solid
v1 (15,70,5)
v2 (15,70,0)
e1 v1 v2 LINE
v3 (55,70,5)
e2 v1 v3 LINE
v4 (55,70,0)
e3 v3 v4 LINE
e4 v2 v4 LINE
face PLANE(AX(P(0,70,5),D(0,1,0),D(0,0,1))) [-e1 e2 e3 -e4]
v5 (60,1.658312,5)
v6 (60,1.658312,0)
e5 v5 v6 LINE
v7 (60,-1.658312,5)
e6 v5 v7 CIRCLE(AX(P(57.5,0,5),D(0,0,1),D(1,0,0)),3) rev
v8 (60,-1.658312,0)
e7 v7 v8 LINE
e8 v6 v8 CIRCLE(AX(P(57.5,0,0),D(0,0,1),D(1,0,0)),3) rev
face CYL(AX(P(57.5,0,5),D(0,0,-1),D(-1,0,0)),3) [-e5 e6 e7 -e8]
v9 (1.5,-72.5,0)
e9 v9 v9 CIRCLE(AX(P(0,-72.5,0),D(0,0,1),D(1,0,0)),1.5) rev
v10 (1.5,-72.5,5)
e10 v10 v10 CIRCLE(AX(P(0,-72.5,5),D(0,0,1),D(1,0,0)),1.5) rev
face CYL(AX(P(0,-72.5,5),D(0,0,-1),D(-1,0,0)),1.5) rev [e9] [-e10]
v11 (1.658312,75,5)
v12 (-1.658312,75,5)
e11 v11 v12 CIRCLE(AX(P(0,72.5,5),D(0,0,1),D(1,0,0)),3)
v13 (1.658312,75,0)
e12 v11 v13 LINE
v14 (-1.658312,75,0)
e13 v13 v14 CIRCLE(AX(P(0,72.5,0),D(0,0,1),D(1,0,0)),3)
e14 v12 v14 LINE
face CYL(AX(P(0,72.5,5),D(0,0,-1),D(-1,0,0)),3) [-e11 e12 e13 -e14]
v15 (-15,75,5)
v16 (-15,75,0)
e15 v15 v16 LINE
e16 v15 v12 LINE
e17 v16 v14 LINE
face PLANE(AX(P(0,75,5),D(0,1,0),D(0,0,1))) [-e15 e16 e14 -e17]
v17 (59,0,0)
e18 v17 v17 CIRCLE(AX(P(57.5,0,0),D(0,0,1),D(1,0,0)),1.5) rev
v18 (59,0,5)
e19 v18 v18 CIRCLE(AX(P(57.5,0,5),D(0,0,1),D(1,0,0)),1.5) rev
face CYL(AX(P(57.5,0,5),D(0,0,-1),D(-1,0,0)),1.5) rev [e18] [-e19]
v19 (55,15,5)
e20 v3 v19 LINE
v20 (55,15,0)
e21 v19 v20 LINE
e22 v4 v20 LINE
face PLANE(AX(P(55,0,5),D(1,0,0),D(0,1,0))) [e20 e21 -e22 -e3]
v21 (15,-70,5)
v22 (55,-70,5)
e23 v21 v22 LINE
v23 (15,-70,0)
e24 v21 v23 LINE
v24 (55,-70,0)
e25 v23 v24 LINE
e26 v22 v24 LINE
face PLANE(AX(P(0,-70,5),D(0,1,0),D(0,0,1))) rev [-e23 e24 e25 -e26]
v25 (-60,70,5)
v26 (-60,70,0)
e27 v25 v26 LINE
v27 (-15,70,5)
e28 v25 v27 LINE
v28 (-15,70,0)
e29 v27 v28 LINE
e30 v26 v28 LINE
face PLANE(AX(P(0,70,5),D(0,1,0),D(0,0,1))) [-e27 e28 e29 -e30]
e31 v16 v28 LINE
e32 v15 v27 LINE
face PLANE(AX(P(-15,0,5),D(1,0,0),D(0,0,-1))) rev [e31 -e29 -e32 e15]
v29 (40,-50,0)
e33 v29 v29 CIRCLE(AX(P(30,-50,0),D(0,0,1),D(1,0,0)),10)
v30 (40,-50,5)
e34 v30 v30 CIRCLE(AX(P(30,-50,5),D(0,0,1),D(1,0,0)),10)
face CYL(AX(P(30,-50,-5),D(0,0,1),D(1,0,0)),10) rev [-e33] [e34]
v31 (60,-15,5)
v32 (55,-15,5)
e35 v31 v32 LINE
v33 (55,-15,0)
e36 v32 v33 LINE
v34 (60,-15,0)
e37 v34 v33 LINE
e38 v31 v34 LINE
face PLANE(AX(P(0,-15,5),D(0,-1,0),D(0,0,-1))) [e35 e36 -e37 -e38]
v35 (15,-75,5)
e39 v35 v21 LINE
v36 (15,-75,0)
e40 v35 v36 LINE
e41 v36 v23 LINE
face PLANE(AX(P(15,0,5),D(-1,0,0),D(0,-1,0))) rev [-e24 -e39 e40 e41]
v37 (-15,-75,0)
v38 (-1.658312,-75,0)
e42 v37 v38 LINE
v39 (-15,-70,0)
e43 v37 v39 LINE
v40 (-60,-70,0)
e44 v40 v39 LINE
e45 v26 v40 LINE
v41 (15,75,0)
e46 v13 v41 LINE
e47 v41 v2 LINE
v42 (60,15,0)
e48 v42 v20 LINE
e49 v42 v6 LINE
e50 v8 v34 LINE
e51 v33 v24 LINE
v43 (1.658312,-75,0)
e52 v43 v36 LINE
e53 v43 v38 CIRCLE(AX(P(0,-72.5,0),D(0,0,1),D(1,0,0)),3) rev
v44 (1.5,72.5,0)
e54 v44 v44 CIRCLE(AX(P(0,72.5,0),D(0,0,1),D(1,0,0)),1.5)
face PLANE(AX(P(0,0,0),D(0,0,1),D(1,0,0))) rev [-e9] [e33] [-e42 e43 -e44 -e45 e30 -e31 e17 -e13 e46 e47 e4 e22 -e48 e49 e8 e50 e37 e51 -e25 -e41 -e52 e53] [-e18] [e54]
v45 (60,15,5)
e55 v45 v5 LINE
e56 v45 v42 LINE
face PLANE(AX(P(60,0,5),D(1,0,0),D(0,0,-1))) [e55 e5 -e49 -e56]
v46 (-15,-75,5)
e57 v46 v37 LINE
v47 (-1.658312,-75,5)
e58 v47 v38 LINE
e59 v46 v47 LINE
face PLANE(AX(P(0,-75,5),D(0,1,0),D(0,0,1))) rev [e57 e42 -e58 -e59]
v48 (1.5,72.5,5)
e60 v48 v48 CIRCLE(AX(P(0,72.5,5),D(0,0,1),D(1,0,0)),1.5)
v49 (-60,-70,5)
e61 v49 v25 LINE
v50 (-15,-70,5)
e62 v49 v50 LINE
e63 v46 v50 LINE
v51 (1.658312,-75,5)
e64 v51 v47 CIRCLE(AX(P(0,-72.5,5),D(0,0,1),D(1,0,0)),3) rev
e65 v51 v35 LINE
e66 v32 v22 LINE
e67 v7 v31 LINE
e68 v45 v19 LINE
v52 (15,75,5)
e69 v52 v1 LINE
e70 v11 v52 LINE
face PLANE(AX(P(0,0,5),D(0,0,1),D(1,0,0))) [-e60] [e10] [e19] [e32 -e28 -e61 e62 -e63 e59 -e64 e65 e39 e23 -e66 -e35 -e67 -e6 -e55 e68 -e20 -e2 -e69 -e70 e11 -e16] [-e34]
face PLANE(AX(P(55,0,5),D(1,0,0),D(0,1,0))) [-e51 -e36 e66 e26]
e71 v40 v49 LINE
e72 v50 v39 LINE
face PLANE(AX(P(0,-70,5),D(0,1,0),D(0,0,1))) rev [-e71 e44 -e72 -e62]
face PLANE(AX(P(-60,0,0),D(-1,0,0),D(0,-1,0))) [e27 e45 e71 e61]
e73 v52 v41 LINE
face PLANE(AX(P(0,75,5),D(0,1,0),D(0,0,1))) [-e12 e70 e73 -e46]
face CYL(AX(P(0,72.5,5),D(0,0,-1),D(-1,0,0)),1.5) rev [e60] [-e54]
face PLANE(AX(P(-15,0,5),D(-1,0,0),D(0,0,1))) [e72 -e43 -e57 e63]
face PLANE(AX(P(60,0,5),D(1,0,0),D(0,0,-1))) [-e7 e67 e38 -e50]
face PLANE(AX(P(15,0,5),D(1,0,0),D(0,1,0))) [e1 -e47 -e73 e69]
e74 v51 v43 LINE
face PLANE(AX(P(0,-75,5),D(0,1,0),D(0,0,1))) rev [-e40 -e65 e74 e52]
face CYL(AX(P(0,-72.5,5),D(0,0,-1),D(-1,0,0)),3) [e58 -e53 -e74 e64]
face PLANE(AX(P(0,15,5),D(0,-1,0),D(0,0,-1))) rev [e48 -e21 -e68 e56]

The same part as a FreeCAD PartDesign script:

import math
import FreeCAD as App
import Part
import Sketcher
from FreeCAD import Vector
Q = App.Units.Quantity


def add_polygon(sketch, points):
    """Adds a closed chain of lines whose ends are joined by coincident constraints."""
    first, n = sketch.GeometryCount, len(points)
    for a, b in zip(points, points[1:] + points[:1]):
        sketch.addGeometry(Part.LineSegment(App.Vector(*a, 0), App.Vector(*b, 0)), False)
    for i in range(n):
        sketch.addConstraint(Sketcher.Constraint("Coincident", first + i, 2, first + (i + 1) % n, 1))

doc = App.newDocument("Part")
body = doc.addObject("PartDesign::Body", "Body")

# Sketch on XY plane
sketch1 = body.newObject("Sketcher::SketchObject", "Sketch")
sketch1.AttachmentSupport = (doc.getObject("XY_Plane"), [""])
sketch1.MapMode = "FlatFace"
sketch1.addGeometry(Part.LineSegment(Vector(-55, 70, 0), Vector(-55, -70, 0)), False)
sketch1.addGeometry(Part.LineSegment(Vector(-55, -70, 0), Vector(-15, -70, 0)), False)
sketch1.addGeometry(Part.LineSegment(Vector(-15, -70, 0), Vector(-15, -75, 0)), False)
sketch1.addGeometry(Part.LineSegment(Vector(-15, -75, 0), Vector(-1.7, -75, 0)), False)
sketch1.addGeometry(Part.ArcOfCircle(Part.Circle(Vector(0, -72.5, 0), Vector(0, 0, 1), 3), math.radians(-124), math.radians(-56)), False)
sketch1.addGeometry(Part.LineSegment(Vector(1.7, -75, 0), Vector(15, -75, 0)), False)
sketch1.addGeometry(Part.LineSegment(Vector(15, -75, 0), Vector(15, -70, 0)), False)
sketch1.addGeometry(Part.LineSegment(Vector(15, -70, 0), Vector(55, -70, 0)), False)
sketch1.addGeometry(Part.LineSegment(Vector(55, -70, 0), Vector(55, -15, 0)), False)
sketch1.addGeometry(Part.LineSegment(Vector(55, -15, 0), Vector(60, -15, 0)), False)
sketch1.addGeometry(Part.LineSegment(Vector(60, -15, 0), Vector(60, -1.7, 0)), False)
sketch1.addGeometry(Part.ArcOfCircle(Part.Circle(Vector(57.5, 0, 0), Vector(0, 0, 1), 3), math.radians(-34), math.radians(34)), False)
sketch1.addGeometry(Part.LineSegment(Vector(60, 1.7, 0), Vector(60, 15, 0)), False)
sketch1.addGeometry(Part.LineSegment(Vector(60, 15, 0), Vector(55, 15, 0)), False)
sketch1.addGeometry(Part.LineSegment(Vector(55, 15, 0), Vector(55, 70, 0)), False)
sketch1.addGeometry(Part.LineSegment(Vector(55, 70, 0), Vector(15, 70, 0)), False)
sketch1.addGeometry(Part.LineSegment(Vector(15, 70, 0), Vector(15, 75, 0)), False)
sketch1.addGeometry(Part.LineSegment(Vector(15, 75, 0), Vector(1.7, 75, 0)), False)
sketch1.addGeometry(Part.ArcOfCircle(Part.Circle(Vector(0, 72.5, 0), Vector(0, 0, 1), 3), math.radians(56), math.radians(124)), False)
sketch1.addGeometry(Part.LineSegment(Vector(-1.7, 75, 0), Vector(-15, 75, 0)), False)
sketch1.addGeometry(Part.LineSegment(Vector(-15, 75, 0), Vector(-15, 70, 0)), False)
sketch1.addGeometry(Part.LineSegment(Vector(-15, 70, 0), Vector(-55, 70, 0)), False)
sketch1.addGeometry(Part.Circle(Vector(0, -72.5, 0), Vector(0, 0, 1), 1.5), False)
sketch1.addGeometry(Part.Circle(Vector(57.5, 0, 0), Vector(0, 0, 1), 1.5), False)
sketch1.addGeometry(Part.Circle(Vector(0, 72.5, 0), Vector(0, 0, 1), 1.5), False)
sketch1.addConstraint(Sketcher.Constraint("Coincident", 0, 2, 1, 1))
sketch1.addConstraint(Sketcher.Constraint("Coincident", 1, 2, 2, 1))
sketch1.addConstraint(Sketcher.Constraint("Coincident", 2, 2, 3, 1))
sketch1.addConstraint(Sketcher.Constraint("Coincident", 3, 2, 4, 1))
sketch1.addConstraint(Sketcher.Constraint("Coincident", 4, 2, 5, 1))
sketch1.addConstraint(Sketcher.Constraint("Coincident", 5, 2, 6, 1))
sketch1.addConstraint(Sketcher.Constraint("Coincident", 6, 2, 7, 1))
sketch1.addConstraint(Sketcher.Constraint("Coincident", 7, 2, 8, 1))
sketch1.addConstraint(Sketcher.Constraint("Coincident", 8, 2, 9, 1))
sketch1.addConstraint(Sketcher.Constraint("Coincident", 9, 2, 10, 1))
sketch1.addConstraint(Sketcher.Constraint("Coincident", 10, 2, 11, 1))
sketch1.addConstraint(Sketcher.Constraint("Coincident", 11, 2, 12, 1))
sketch1.addConstraint(Sketcher.Constraint("Coincident", 12, 2, 13, 1))
sketch1.addConstraint(Sketcher.Constraint("Coincident", 13, 2, 14, 1))
sketch1.addConstraint(Sketcher.Constraint("Coincident", 14, 2, 15, 1))
sketch1.addConstraint(Sketcher.Constraint("Coincident", 15, 2, 16, 1))
sketch1.addConstraint(Sketcher.Constraint("Coincident", 16, 2, 17, 1))
sketch1.addConstraint(Sketcher.Constraint("Coincident", 17, 2, 18, 1))
sketch1.addConstraint(Sketcher.Constraint("Coincident", 18, 2, 19, 1))
sketch1.addConstraint(Sketcher.Constraint("Coincident", 19, 2, 20, 1))
sketch1.addConstraint(Sketcher.Constraint("Coincident", 20, 2, 21, 1))
sketch1.addConstraint(Sketcher.Constraint("Coincident", 21, 2, 0, 1))
sketch1.addConstraint(Sketcher.Constraint("Vertical", 0))
sketch1.addConstraint(Sketcher.Constraint("Horizontal", 1))
sketch1.addConstraint(Sketcher.Constraint("Vertical", 2))
sketch1.addConstraint(Sketcher.Constraint("Horizontal", 3))
sketch1.addConstraint(Sketcher.Constraint("Horizontal", 5))
sketch1.addConstraint(Sketcher.Constraint("Vertical", 6))
sketch1.addConstraint(Sketcher.Constraint("Horizontal", 7))
sketch1.addConstraint(Sketcher.Constraint("Vertical", 8))
sketch1.addConstraint(Sketcher.Constraint("Horizontal", 9))
sketch1.addConstraint(Sketcher.Constraint("Vertical", 10))
sketch1.addConstraint(Sketcher.Constraint("Vertical", 12))
sketch1.addConstraint(Sketcher.Constraint("Horizontal", 13))
sketch1.addConstraint(Sketcher.Constraint("Vertical", 14))
sketch1.addConstraint(Sketcher.Constraint("Horizontal", 15))
sketch1.addConstraint(Sketcher.Constraint("Vertical", 16))
sketch1.addConstraint(Sketcher.Constraint("Horizontal", 17))
sketch1.addConstraint(Sketcher.Constraint("Horizontal", 19))
sketch1.addConstraint(Sketcher.Constraint("Vertical", 20))
sketch1.addConstraint(Sketcher.Constraint("Horizontal", 21))
sketch1.addConstraint(Sketcher.Constraint("Coincident", 22, 3, 4, 3))
sketch1.addConstraint(Sketcher.Constraint("Coincident", 23, 3, 11, 3))
sketch1.addConstraint(Sketcher.Constraint("Coincident", 24, 3, 18, 3))
sketch1.addConstraint(Sketcher.Constraint("Equal", 4, 11))
sketch1.addConstraint(Sketcher.Constraint("Equal", 11, 18))
sketch1.addConstraint(Sketcher.Constraint("Equal", 22, 23))
sketch1.addConstraint(Sketcher.Constraint("Equal", 23, 24))
sketch1.addConstraint(Sketcher.Constraint("Symmetric", 4, 3, 18, 3, -1, 1))
sketch1.addConstraint(Sketcher.Constraint("Symmetric", 0, 2, 14, 2, -1, 1))
sketch1.addConstraint(Sketcher.Constraint("Symmetric", 2, 2, 16, 2, -1, 1))
sketch1.addConstraint(Sketcher.Constraint("Symmetric", 5, 2, 19, 2, -1, 1))
sketch1.addConstraint(Sketcher.Constraint("Symmetric", 7, 2, 21, 2, -1, 1))
sketch1.addConstraint(Sketcher.Constraint("Symmetric", 3, 2, 4, 2, -2))
sketch1.addConstraint(Sketcher.Constraint("Symmetric", 1, 2, 6, 2, -2))
sketch1.addConstraint(Sketcher.Constraint("Symmetric", 10, 2, 11, 2, -1))
sketch1.addConstraint(Sketcher.Constraint("Equal", 13, 2))
sketch1.addConstraint(Sketcher.Constraint("Equal", 19, 10))
sketch1.addConstraint(Sketcher.Constraint("Equal", 10, 12))
sketch1.addConstraint(Sketcher.Constraint("Diameter", 22, Q("3 mm")))
sketch1.addConstraint(Sketcher.Constraint("Radius", 4, Q("3 mm")))
sketch1.addConstraint(Sketcher.Constraint("DistanceX", 1, 1, 1, 2, Q("40 mm")))
sketch1.addConstraint(Sketcher.Constraint("DistanceX", 9, 1, 9, 2, Q("5 mm")))
sketch1.addConstraint(Sketcher.Constraint("DistanceY", 0, 2, 0, 1, Q("140 mm")))
sketch1.addConstraint(Sketcher.Constraint("DistanceY", 8, 1, 8, 2, Q("55 mm")))
sketch1.addConstraint(Sketcher.Constraint("DistanceX", 0, 2, -1, 1, Q("55 mm")))
sketch1.addConstraint(Sketcher.Constraint("DistanceY", 4, 3, 18, 3, Q("145 mm")))
pad1 = body.newObject("PartDesign::Pad", "Pad")
pad1.Profile = sketch1
pad1.Length = 5

# Sketch on YZ plane
sketch2 = body.newObject("Sketcher::SketchObject", "Sketch001")
sketch2.AttachmentSupport = (doc.getObject("YZ_Plane"), [""])
sketch2.MapMode = "FlatFace"
sketch2.AttachmentOffset = App.Placement(Vector(0, 0, -55), App.Rotation())
add_polygon(sketch2, [(70, 0), (-70, 0), (-70, 5), (70, 5)])  # lines 0-3
sketch2.addConstraint(Sketcher.Constraint("Horizontal", 0))
sketch2.addConstraint(Sketcher.Constraint("Vertical", 1))
sketch2.addConstraint(Sketcher.Constraint("Horizontal", 2))
sketch2.addConstraint(Sketcher.Constraint("Vertical", 3))
sketch2.addConstraint(Sketcher.Constraint("Symmetric", 0, 2, 3, 2, -1, 1))
sketch2.addConstraint(Sketcher.Constraint("DistanceX", 0, 2, 0, 1, Q("140 mm")))
sketch2.addConstraint(Sketcher.Constraint("DistanceY", 1, 1, 1, 2, Q("5 mm")))
pad2 = body.newObject("PartDesign::Pad", "Pad001")
pad2.Profile = sketch2
pad2.Length = 5
pad2.Reversed = True

# Sketch on XY plane
sketch3 = body.newObject("Sketcher::SketchObject", "Sketch002")
sketch3.AttachmentSupport = (doc.getObject("XY_Plane"), [""])
sketch3.MapMode = "FlatFace"
sketch3.AttachmentOffset = App.Placement(Vector(0, 0, 5), App.Rotation())
sketch3.addGeometry(Part.Circle(Vector(30, -50, 0), Vector(0, 0, 1), 10), False)
sketch3.addConstraint(Sketcher.Constraint("Diameter", 0, Q("20 mm")))
sketch3.addConstraint(Sketcher.Constraint("DistanceX", -1, 1, 0, 3, Q("30 mm")))
sketch3.addConstraint(Sketcher.Constraint("DistanceY", 0, 3, -1, 1, Q("50 mm")))
pocket1 = body.newObject("PartDesign::Pocket", "Pocket")
pocket1.Profile = sketch3
pocket1.Length = 10

doc.recompute()
